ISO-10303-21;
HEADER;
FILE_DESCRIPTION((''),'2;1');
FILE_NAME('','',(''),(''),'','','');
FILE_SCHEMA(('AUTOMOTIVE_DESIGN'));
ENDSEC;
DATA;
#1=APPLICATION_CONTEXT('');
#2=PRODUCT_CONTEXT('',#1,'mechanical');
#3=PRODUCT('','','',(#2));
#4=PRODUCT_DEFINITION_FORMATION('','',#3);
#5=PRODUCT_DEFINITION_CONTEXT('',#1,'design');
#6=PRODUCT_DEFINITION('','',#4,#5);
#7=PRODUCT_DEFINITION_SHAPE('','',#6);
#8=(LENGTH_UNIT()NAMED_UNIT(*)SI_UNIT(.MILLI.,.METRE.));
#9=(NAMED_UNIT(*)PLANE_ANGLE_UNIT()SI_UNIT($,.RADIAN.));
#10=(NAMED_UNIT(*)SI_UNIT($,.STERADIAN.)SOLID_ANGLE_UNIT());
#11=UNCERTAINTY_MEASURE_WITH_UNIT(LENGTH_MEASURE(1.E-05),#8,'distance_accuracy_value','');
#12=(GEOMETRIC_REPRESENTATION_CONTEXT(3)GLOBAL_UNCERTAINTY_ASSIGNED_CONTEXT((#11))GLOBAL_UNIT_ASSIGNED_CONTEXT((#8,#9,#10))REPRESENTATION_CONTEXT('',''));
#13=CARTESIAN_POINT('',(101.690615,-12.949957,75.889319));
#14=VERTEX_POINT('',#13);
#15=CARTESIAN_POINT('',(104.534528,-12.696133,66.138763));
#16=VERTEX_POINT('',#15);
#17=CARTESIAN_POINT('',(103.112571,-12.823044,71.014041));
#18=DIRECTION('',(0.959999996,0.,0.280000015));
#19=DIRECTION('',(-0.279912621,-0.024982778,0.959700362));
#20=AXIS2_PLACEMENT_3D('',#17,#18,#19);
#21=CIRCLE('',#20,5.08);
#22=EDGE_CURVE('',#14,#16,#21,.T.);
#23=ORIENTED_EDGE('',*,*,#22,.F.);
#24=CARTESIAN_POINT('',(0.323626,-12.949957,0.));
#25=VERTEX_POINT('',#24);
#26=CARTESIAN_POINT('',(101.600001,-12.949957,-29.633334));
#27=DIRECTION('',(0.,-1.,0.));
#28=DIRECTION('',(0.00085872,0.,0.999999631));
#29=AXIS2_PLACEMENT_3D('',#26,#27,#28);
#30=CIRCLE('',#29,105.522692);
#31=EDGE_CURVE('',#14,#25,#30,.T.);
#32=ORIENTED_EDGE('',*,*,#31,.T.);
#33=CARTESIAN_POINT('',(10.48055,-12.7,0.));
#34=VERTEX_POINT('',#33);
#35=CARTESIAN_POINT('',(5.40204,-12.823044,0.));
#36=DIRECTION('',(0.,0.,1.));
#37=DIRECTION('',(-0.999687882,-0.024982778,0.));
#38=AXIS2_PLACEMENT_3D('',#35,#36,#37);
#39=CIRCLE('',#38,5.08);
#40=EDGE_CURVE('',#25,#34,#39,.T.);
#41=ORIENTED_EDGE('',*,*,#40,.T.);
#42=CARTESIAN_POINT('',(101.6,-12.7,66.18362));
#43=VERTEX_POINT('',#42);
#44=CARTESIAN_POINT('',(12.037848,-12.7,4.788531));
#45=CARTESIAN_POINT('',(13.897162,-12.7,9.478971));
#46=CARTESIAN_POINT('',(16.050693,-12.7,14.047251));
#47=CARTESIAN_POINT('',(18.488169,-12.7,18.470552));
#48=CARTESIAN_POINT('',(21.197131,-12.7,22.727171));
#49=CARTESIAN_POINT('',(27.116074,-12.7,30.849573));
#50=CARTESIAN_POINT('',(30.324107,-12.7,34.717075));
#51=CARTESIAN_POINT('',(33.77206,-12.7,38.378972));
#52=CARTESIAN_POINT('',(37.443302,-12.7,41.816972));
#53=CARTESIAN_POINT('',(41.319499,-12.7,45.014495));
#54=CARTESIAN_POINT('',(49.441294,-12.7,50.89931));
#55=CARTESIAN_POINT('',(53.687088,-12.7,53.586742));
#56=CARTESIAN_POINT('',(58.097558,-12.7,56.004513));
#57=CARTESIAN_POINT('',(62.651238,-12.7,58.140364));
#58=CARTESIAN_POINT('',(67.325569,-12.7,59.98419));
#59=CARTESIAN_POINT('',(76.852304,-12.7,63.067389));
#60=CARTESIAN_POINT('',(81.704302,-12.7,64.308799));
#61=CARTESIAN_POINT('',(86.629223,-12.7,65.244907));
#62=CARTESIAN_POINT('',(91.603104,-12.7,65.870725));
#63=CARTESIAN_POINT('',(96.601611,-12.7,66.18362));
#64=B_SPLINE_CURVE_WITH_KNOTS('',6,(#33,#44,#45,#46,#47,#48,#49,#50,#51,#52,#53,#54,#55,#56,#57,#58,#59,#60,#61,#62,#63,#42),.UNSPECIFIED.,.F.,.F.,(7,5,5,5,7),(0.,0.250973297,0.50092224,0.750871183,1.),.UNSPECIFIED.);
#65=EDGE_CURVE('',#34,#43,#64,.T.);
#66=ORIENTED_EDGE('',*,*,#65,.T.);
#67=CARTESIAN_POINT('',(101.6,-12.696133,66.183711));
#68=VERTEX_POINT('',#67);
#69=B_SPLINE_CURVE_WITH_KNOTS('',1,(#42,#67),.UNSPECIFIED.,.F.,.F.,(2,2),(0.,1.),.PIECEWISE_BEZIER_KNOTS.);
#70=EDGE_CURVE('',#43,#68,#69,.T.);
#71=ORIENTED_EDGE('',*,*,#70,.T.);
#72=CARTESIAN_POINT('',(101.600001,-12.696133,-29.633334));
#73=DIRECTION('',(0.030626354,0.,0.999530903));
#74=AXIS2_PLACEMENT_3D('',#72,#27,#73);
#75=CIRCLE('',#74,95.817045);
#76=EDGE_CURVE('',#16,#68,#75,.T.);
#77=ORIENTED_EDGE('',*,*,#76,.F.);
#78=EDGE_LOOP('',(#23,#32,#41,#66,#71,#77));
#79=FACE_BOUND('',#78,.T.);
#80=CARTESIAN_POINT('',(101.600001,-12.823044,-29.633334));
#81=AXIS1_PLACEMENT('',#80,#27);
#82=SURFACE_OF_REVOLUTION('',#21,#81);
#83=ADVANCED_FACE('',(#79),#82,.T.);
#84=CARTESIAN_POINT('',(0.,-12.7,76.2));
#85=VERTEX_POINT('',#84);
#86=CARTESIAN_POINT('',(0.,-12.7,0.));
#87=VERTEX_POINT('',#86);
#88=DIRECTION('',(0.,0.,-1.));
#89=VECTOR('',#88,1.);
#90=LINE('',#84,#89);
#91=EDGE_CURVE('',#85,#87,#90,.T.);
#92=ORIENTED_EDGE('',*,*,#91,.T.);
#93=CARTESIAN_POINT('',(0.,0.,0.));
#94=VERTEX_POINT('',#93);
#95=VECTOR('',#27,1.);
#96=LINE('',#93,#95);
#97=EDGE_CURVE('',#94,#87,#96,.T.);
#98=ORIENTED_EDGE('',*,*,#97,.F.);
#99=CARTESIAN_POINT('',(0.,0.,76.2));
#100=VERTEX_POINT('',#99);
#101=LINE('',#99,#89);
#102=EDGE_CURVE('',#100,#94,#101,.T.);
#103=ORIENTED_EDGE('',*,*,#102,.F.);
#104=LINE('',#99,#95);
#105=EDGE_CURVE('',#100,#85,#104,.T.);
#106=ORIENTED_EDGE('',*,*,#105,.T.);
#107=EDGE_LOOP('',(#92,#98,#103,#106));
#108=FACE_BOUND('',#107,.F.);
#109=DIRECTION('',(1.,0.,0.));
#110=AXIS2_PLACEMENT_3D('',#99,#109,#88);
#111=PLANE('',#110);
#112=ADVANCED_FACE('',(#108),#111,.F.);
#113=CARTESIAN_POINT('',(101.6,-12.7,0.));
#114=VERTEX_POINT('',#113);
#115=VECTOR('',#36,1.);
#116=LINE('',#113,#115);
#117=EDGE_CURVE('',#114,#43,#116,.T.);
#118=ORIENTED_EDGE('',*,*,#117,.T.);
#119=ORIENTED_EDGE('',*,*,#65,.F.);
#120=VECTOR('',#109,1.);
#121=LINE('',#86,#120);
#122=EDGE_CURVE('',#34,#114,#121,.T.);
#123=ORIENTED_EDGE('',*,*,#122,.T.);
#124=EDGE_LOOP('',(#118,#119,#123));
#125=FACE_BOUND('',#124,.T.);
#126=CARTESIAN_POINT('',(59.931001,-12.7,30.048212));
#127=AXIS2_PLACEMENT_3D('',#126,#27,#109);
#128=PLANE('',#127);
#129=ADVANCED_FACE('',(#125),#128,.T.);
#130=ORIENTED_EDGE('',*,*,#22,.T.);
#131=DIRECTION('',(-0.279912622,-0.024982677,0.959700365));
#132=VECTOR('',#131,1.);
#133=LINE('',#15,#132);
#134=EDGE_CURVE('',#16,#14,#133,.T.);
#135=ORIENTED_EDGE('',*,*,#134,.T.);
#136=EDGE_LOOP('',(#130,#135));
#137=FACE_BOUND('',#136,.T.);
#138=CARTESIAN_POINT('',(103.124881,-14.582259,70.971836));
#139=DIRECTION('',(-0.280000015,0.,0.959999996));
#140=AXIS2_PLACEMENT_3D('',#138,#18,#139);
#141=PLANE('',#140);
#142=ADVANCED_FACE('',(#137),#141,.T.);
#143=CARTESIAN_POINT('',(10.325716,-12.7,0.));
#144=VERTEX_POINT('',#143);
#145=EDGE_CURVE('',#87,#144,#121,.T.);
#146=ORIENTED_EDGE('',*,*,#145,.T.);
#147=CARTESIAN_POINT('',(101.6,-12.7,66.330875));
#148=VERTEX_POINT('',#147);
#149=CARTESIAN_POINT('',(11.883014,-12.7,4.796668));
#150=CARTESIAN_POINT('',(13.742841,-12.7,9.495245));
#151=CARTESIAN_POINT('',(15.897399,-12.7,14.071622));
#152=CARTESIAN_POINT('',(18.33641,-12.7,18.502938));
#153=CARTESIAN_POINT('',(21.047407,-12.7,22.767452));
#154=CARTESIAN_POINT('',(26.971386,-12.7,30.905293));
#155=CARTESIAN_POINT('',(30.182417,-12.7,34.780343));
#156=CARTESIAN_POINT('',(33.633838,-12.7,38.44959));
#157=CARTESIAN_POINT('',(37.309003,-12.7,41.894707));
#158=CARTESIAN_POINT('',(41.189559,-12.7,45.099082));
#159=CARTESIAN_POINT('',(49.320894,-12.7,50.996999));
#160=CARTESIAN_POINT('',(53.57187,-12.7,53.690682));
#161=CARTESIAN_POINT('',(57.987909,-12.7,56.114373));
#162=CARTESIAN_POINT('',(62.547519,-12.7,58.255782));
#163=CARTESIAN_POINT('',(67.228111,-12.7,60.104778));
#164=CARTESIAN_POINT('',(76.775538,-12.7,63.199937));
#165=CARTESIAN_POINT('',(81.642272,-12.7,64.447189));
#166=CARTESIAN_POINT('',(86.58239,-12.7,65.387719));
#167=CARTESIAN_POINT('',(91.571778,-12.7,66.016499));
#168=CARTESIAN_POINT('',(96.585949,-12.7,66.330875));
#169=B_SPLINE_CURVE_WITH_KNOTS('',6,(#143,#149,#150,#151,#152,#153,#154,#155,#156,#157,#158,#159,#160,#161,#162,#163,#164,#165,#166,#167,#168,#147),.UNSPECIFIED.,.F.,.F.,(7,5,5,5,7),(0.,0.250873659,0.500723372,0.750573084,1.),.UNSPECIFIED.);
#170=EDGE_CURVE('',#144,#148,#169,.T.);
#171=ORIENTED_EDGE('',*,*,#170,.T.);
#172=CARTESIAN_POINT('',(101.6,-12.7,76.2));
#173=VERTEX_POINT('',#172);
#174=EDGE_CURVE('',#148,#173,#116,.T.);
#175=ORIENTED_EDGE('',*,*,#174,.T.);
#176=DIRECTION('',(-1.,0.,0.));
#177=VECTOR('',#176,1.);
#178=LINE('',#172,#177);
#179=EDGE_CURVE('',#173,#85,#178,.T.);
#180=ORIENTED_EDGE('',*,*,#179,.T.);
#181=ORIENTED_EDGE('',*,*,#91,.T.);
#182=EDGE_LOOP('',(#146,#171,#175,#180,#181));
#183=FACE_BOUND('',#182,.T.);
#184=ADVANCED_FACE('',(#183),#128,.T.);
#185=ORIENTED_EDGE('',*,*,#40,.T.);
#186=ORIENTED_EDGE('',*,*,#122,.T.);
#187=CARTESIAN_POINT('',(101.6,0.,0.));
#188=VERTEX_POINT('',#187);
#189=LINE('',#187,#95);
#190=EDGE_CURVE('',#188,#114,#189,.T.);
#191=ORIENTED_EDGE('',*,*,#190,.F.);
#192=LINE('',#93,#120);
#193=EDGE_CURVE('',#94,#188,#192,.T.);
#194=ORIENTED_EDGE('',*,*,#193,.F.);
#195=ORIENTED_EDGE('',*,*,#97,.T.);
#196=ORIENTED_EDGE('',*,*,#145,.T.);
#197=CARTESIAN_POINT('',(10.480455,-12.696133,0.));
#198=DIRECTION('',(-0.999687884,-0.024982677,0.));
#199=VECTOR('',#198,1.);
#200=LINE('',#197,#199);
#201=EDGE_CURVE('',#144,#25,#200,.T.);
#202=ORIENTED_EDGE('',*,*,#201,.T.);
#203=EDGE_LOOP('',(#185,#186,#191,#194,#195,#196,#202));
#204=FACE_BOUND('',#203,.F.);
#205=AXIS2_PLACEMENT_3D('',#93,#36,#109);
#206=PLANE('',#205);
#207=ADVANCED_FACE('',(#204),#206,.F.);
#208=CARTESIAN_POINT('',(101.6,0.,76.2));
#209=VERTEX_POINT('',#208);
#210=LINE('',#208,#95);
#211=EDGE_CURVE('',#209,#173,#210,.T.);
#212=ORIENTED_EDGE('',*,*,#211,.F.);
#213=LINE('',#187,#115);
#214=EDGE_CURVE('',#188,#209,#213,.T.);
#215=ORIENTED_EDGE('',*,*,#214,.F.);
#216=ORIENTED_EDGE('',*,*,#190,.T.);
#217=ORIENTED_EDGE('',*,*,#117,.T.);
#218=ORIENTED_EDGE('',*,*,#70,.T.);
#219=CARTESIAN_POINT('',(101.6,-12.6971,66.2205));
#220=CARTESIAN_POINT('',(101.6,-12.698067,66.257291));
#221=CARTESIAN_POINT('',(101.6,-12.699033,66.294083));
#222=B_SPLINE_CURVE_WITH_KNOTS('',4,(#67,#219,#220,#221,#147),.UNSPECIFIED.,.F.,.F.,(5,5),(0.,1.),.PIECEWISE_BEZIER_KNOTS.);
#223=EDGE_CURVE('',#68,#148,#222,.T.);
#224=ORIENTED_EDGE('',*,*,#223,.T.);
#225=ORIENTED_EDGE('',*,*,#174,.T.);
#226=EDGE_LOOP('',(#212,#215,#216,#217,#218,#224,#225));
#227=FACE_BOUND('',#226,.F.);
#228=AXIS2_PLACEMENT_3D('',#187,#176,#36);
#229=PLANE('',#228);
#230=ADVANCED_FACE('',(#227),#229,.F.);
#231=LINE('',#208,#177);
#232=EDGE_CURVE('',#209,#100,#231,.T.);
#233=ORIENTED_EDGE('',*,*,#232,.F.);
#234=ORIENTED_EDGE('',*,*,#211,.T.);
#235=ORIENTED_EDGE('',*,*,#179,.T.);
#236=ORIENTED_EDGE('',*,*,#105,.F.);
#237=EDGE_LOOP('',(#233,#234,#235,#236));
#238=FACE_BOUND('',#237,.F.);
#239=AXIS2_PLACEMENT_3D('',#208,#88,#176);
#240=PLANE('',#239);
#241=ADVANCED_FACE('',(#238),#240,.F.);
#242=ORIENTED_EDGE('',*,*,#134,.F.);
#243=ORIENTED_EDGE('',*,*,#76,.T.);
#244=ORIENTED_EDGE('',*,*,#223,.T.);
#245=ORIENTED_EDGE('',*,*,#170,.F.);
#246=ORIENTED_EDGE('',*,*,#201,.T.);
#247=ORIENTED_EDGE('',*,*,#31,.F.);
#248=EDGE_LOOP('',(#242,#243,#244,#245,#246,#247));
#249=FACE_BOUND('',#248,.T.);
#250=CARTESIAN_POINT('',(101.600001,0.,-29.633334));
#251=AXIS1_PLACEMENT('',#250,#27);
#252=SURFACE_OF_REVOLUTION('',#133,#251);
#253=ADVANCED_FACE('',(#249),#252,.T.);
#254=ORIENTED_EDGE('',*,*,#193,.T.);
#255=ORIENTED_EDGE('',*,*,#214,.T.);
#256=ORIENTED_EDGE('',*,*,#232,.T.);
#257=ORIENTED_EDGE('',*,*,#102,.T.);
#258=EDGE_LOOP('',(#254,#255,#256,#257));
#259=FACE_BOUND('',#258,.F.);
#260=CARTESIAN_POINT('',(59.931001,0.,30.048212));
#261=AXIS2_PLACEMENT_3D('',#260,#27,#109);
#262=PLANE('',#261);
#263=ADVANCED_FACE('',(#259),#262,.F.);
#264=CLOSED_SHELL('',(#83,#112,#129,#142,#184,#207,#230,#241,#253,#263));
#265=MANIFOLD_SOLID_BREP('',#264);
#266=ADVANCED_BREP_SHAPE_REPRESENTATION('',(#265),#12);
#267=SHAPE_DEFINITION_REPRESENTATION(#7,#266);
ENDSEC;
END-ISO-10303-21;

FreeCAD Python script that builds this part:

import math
import FreeCAD as App
import Part
import Sketcher
Q = App.Units.Quantity


def add_polygon(sketch, points):
    """Adds a closed chain of lines whose ends are joined by coincident constraints."""
    first, n = sketch.GeometryCount, len(points)
    for a, b in zip(points, points[1:] + points[:1]):
        sketch.addGeometry(Part.LineSegment(App.Vector(*a, 0), App.Vector(*b, 0)), False)
    for i in range(n):
        sketch.addConstraint(Sketcher.Constraint("Coincident", first + i, 2, first + (i + 1) % n, 1))

doc = App.newDocument("Part")
body = doc.addObject("PartDesign::Body", "Body")

# Sketch on XY plane
sketch1 = doc.addObject("Sketcher::SketchObject", "Sketch")
body.addObject(sketch1)
sketch1.AttachmentSupport = (doc.XY_Plane, [""])
sketch1.MapMode = "FlatFace"
sketch1.addGeometry(Part.LineSegment(App.Vector(10.480455, -12.696133, 0), App.Vector(0.323626, -12.949957, 0)), False)
sketch1.addGeometry(Part.ArcOfCircle(Part.Circle(App.Vector(5.40204, -12.823044, 0), App.Vector(0, 0, 1), 5.08), math.radians(-178.568443), math.radians(1.431545)), False)
sketch1.addConstraint(Sketcher.Constraint("Coincident", 0, 1, 1, 2))
sketch1.addConstraint(Sketcher.Constraint("Coincident", 1, 1, 0, 2))
sketch1.addConstraint(Sketcher.Constraint("Radius", 1, Q("0.2 in")))
sketch1.addConstraint(Sketcher.Constraint("DistanceX", -1, 1, 1, 3, Q("5.40204 mm")))
sketch1.addConstraint(Sketcher.Constraint("DistanceY", 1, 3, 0, 1, Q("0.126911 mm")))
sketch1.addConstraint(Sketcher.Constraint("DistanceX", 1, 1, 0, 1, Q("10.156829 mm")))
sketch1.addConstraint(Sketcher.Constraint("DistanceY", 1, 3, -1, 1, Q("12.823044 mm")))

# Sketch on XZ plane
sketch2 = doc.addObject("Sketcher::SketchObject", "Sketch001")
body.addObject(sketch2)
sketch2.AttachmentSupport = (doc.XZ_Plane, [""])
sketch2.MapMode = "FlatFace"
sketch2.addGeometry(Part.ArcOfCircle(Part.Circle(App.Vector(101.600001, -29.633334, 0), App.Vector(0, 0, 1), 105.833334), math.radians(90), math.radians(163.739795)), False)
sketch2.addConstraint(Sketcher.Constraint("Coincident", 0, 2, -1, 1))
sketch2.addConstraint(Sketcher.Constraint("DistanceX", -1, 1, 0, 3, Q("4 in")))
sketch2.addConstraint(Sketcher.Constraint("DistanceX", -1, 1, 0, 1, Q("4 in")))
sketch2.addConstraint(Sketcher.Constraint("DistanceY", -1, 1, 0, 1, Q("3 in")))
doc.recompute()

additivepipe = doc.addObject("PartDesign::AdditivePipe", "AdditivePipe")
body.addObject(additivepipe)
additivepipe.Profile = sketch1
additivepipe.Spine = (sketch2, ["Edge1"])

# Sketch on XZ plane
sketch3 = doc.addObject("Sketcher::SketchObject", "Sketch002")
body.addObject(sketch3)
sketch3.AttachmentSupport = (doc.XZ_Plane, [""])
sketch3.MapMode = "FlatFace"
add_polygon(sketch3, [(0, 0), (101.6, 0), (101.6, 76.2), (0, 76.2)])  # lines 0-3
sketch3.addConstraint(Sketcher.Constraint("Horizontal", 0))
sketch3.addConstraint(Sketcher.Constraint("Vertical", 1))
sketch3.addConstraint(Sketcher.Constraint("Horizontal", 2))
sketch3.addConstraint(Sketcher.Constraint("Vertical", 3))
sketch3.addConstraint(Sketcher.Constraint("Coincident", 3, 2, -1, 1))
sketch3.addConstraint(Sketcher.Constraint("DistanceX", 0, 1, 0, 2, Q("4 in")))
sketch3.addConstraint(Sketcher.Constraint("DistanceY", 1, 1, 1, 2, Q("3 in")))
pad1 = doc.addObject("PartDesign::Pad", "Pad")
body.addObject(pad1)
pad1.Profile = sketch3
pad1.Length = Q("0.5 in")

doc.recompute()
